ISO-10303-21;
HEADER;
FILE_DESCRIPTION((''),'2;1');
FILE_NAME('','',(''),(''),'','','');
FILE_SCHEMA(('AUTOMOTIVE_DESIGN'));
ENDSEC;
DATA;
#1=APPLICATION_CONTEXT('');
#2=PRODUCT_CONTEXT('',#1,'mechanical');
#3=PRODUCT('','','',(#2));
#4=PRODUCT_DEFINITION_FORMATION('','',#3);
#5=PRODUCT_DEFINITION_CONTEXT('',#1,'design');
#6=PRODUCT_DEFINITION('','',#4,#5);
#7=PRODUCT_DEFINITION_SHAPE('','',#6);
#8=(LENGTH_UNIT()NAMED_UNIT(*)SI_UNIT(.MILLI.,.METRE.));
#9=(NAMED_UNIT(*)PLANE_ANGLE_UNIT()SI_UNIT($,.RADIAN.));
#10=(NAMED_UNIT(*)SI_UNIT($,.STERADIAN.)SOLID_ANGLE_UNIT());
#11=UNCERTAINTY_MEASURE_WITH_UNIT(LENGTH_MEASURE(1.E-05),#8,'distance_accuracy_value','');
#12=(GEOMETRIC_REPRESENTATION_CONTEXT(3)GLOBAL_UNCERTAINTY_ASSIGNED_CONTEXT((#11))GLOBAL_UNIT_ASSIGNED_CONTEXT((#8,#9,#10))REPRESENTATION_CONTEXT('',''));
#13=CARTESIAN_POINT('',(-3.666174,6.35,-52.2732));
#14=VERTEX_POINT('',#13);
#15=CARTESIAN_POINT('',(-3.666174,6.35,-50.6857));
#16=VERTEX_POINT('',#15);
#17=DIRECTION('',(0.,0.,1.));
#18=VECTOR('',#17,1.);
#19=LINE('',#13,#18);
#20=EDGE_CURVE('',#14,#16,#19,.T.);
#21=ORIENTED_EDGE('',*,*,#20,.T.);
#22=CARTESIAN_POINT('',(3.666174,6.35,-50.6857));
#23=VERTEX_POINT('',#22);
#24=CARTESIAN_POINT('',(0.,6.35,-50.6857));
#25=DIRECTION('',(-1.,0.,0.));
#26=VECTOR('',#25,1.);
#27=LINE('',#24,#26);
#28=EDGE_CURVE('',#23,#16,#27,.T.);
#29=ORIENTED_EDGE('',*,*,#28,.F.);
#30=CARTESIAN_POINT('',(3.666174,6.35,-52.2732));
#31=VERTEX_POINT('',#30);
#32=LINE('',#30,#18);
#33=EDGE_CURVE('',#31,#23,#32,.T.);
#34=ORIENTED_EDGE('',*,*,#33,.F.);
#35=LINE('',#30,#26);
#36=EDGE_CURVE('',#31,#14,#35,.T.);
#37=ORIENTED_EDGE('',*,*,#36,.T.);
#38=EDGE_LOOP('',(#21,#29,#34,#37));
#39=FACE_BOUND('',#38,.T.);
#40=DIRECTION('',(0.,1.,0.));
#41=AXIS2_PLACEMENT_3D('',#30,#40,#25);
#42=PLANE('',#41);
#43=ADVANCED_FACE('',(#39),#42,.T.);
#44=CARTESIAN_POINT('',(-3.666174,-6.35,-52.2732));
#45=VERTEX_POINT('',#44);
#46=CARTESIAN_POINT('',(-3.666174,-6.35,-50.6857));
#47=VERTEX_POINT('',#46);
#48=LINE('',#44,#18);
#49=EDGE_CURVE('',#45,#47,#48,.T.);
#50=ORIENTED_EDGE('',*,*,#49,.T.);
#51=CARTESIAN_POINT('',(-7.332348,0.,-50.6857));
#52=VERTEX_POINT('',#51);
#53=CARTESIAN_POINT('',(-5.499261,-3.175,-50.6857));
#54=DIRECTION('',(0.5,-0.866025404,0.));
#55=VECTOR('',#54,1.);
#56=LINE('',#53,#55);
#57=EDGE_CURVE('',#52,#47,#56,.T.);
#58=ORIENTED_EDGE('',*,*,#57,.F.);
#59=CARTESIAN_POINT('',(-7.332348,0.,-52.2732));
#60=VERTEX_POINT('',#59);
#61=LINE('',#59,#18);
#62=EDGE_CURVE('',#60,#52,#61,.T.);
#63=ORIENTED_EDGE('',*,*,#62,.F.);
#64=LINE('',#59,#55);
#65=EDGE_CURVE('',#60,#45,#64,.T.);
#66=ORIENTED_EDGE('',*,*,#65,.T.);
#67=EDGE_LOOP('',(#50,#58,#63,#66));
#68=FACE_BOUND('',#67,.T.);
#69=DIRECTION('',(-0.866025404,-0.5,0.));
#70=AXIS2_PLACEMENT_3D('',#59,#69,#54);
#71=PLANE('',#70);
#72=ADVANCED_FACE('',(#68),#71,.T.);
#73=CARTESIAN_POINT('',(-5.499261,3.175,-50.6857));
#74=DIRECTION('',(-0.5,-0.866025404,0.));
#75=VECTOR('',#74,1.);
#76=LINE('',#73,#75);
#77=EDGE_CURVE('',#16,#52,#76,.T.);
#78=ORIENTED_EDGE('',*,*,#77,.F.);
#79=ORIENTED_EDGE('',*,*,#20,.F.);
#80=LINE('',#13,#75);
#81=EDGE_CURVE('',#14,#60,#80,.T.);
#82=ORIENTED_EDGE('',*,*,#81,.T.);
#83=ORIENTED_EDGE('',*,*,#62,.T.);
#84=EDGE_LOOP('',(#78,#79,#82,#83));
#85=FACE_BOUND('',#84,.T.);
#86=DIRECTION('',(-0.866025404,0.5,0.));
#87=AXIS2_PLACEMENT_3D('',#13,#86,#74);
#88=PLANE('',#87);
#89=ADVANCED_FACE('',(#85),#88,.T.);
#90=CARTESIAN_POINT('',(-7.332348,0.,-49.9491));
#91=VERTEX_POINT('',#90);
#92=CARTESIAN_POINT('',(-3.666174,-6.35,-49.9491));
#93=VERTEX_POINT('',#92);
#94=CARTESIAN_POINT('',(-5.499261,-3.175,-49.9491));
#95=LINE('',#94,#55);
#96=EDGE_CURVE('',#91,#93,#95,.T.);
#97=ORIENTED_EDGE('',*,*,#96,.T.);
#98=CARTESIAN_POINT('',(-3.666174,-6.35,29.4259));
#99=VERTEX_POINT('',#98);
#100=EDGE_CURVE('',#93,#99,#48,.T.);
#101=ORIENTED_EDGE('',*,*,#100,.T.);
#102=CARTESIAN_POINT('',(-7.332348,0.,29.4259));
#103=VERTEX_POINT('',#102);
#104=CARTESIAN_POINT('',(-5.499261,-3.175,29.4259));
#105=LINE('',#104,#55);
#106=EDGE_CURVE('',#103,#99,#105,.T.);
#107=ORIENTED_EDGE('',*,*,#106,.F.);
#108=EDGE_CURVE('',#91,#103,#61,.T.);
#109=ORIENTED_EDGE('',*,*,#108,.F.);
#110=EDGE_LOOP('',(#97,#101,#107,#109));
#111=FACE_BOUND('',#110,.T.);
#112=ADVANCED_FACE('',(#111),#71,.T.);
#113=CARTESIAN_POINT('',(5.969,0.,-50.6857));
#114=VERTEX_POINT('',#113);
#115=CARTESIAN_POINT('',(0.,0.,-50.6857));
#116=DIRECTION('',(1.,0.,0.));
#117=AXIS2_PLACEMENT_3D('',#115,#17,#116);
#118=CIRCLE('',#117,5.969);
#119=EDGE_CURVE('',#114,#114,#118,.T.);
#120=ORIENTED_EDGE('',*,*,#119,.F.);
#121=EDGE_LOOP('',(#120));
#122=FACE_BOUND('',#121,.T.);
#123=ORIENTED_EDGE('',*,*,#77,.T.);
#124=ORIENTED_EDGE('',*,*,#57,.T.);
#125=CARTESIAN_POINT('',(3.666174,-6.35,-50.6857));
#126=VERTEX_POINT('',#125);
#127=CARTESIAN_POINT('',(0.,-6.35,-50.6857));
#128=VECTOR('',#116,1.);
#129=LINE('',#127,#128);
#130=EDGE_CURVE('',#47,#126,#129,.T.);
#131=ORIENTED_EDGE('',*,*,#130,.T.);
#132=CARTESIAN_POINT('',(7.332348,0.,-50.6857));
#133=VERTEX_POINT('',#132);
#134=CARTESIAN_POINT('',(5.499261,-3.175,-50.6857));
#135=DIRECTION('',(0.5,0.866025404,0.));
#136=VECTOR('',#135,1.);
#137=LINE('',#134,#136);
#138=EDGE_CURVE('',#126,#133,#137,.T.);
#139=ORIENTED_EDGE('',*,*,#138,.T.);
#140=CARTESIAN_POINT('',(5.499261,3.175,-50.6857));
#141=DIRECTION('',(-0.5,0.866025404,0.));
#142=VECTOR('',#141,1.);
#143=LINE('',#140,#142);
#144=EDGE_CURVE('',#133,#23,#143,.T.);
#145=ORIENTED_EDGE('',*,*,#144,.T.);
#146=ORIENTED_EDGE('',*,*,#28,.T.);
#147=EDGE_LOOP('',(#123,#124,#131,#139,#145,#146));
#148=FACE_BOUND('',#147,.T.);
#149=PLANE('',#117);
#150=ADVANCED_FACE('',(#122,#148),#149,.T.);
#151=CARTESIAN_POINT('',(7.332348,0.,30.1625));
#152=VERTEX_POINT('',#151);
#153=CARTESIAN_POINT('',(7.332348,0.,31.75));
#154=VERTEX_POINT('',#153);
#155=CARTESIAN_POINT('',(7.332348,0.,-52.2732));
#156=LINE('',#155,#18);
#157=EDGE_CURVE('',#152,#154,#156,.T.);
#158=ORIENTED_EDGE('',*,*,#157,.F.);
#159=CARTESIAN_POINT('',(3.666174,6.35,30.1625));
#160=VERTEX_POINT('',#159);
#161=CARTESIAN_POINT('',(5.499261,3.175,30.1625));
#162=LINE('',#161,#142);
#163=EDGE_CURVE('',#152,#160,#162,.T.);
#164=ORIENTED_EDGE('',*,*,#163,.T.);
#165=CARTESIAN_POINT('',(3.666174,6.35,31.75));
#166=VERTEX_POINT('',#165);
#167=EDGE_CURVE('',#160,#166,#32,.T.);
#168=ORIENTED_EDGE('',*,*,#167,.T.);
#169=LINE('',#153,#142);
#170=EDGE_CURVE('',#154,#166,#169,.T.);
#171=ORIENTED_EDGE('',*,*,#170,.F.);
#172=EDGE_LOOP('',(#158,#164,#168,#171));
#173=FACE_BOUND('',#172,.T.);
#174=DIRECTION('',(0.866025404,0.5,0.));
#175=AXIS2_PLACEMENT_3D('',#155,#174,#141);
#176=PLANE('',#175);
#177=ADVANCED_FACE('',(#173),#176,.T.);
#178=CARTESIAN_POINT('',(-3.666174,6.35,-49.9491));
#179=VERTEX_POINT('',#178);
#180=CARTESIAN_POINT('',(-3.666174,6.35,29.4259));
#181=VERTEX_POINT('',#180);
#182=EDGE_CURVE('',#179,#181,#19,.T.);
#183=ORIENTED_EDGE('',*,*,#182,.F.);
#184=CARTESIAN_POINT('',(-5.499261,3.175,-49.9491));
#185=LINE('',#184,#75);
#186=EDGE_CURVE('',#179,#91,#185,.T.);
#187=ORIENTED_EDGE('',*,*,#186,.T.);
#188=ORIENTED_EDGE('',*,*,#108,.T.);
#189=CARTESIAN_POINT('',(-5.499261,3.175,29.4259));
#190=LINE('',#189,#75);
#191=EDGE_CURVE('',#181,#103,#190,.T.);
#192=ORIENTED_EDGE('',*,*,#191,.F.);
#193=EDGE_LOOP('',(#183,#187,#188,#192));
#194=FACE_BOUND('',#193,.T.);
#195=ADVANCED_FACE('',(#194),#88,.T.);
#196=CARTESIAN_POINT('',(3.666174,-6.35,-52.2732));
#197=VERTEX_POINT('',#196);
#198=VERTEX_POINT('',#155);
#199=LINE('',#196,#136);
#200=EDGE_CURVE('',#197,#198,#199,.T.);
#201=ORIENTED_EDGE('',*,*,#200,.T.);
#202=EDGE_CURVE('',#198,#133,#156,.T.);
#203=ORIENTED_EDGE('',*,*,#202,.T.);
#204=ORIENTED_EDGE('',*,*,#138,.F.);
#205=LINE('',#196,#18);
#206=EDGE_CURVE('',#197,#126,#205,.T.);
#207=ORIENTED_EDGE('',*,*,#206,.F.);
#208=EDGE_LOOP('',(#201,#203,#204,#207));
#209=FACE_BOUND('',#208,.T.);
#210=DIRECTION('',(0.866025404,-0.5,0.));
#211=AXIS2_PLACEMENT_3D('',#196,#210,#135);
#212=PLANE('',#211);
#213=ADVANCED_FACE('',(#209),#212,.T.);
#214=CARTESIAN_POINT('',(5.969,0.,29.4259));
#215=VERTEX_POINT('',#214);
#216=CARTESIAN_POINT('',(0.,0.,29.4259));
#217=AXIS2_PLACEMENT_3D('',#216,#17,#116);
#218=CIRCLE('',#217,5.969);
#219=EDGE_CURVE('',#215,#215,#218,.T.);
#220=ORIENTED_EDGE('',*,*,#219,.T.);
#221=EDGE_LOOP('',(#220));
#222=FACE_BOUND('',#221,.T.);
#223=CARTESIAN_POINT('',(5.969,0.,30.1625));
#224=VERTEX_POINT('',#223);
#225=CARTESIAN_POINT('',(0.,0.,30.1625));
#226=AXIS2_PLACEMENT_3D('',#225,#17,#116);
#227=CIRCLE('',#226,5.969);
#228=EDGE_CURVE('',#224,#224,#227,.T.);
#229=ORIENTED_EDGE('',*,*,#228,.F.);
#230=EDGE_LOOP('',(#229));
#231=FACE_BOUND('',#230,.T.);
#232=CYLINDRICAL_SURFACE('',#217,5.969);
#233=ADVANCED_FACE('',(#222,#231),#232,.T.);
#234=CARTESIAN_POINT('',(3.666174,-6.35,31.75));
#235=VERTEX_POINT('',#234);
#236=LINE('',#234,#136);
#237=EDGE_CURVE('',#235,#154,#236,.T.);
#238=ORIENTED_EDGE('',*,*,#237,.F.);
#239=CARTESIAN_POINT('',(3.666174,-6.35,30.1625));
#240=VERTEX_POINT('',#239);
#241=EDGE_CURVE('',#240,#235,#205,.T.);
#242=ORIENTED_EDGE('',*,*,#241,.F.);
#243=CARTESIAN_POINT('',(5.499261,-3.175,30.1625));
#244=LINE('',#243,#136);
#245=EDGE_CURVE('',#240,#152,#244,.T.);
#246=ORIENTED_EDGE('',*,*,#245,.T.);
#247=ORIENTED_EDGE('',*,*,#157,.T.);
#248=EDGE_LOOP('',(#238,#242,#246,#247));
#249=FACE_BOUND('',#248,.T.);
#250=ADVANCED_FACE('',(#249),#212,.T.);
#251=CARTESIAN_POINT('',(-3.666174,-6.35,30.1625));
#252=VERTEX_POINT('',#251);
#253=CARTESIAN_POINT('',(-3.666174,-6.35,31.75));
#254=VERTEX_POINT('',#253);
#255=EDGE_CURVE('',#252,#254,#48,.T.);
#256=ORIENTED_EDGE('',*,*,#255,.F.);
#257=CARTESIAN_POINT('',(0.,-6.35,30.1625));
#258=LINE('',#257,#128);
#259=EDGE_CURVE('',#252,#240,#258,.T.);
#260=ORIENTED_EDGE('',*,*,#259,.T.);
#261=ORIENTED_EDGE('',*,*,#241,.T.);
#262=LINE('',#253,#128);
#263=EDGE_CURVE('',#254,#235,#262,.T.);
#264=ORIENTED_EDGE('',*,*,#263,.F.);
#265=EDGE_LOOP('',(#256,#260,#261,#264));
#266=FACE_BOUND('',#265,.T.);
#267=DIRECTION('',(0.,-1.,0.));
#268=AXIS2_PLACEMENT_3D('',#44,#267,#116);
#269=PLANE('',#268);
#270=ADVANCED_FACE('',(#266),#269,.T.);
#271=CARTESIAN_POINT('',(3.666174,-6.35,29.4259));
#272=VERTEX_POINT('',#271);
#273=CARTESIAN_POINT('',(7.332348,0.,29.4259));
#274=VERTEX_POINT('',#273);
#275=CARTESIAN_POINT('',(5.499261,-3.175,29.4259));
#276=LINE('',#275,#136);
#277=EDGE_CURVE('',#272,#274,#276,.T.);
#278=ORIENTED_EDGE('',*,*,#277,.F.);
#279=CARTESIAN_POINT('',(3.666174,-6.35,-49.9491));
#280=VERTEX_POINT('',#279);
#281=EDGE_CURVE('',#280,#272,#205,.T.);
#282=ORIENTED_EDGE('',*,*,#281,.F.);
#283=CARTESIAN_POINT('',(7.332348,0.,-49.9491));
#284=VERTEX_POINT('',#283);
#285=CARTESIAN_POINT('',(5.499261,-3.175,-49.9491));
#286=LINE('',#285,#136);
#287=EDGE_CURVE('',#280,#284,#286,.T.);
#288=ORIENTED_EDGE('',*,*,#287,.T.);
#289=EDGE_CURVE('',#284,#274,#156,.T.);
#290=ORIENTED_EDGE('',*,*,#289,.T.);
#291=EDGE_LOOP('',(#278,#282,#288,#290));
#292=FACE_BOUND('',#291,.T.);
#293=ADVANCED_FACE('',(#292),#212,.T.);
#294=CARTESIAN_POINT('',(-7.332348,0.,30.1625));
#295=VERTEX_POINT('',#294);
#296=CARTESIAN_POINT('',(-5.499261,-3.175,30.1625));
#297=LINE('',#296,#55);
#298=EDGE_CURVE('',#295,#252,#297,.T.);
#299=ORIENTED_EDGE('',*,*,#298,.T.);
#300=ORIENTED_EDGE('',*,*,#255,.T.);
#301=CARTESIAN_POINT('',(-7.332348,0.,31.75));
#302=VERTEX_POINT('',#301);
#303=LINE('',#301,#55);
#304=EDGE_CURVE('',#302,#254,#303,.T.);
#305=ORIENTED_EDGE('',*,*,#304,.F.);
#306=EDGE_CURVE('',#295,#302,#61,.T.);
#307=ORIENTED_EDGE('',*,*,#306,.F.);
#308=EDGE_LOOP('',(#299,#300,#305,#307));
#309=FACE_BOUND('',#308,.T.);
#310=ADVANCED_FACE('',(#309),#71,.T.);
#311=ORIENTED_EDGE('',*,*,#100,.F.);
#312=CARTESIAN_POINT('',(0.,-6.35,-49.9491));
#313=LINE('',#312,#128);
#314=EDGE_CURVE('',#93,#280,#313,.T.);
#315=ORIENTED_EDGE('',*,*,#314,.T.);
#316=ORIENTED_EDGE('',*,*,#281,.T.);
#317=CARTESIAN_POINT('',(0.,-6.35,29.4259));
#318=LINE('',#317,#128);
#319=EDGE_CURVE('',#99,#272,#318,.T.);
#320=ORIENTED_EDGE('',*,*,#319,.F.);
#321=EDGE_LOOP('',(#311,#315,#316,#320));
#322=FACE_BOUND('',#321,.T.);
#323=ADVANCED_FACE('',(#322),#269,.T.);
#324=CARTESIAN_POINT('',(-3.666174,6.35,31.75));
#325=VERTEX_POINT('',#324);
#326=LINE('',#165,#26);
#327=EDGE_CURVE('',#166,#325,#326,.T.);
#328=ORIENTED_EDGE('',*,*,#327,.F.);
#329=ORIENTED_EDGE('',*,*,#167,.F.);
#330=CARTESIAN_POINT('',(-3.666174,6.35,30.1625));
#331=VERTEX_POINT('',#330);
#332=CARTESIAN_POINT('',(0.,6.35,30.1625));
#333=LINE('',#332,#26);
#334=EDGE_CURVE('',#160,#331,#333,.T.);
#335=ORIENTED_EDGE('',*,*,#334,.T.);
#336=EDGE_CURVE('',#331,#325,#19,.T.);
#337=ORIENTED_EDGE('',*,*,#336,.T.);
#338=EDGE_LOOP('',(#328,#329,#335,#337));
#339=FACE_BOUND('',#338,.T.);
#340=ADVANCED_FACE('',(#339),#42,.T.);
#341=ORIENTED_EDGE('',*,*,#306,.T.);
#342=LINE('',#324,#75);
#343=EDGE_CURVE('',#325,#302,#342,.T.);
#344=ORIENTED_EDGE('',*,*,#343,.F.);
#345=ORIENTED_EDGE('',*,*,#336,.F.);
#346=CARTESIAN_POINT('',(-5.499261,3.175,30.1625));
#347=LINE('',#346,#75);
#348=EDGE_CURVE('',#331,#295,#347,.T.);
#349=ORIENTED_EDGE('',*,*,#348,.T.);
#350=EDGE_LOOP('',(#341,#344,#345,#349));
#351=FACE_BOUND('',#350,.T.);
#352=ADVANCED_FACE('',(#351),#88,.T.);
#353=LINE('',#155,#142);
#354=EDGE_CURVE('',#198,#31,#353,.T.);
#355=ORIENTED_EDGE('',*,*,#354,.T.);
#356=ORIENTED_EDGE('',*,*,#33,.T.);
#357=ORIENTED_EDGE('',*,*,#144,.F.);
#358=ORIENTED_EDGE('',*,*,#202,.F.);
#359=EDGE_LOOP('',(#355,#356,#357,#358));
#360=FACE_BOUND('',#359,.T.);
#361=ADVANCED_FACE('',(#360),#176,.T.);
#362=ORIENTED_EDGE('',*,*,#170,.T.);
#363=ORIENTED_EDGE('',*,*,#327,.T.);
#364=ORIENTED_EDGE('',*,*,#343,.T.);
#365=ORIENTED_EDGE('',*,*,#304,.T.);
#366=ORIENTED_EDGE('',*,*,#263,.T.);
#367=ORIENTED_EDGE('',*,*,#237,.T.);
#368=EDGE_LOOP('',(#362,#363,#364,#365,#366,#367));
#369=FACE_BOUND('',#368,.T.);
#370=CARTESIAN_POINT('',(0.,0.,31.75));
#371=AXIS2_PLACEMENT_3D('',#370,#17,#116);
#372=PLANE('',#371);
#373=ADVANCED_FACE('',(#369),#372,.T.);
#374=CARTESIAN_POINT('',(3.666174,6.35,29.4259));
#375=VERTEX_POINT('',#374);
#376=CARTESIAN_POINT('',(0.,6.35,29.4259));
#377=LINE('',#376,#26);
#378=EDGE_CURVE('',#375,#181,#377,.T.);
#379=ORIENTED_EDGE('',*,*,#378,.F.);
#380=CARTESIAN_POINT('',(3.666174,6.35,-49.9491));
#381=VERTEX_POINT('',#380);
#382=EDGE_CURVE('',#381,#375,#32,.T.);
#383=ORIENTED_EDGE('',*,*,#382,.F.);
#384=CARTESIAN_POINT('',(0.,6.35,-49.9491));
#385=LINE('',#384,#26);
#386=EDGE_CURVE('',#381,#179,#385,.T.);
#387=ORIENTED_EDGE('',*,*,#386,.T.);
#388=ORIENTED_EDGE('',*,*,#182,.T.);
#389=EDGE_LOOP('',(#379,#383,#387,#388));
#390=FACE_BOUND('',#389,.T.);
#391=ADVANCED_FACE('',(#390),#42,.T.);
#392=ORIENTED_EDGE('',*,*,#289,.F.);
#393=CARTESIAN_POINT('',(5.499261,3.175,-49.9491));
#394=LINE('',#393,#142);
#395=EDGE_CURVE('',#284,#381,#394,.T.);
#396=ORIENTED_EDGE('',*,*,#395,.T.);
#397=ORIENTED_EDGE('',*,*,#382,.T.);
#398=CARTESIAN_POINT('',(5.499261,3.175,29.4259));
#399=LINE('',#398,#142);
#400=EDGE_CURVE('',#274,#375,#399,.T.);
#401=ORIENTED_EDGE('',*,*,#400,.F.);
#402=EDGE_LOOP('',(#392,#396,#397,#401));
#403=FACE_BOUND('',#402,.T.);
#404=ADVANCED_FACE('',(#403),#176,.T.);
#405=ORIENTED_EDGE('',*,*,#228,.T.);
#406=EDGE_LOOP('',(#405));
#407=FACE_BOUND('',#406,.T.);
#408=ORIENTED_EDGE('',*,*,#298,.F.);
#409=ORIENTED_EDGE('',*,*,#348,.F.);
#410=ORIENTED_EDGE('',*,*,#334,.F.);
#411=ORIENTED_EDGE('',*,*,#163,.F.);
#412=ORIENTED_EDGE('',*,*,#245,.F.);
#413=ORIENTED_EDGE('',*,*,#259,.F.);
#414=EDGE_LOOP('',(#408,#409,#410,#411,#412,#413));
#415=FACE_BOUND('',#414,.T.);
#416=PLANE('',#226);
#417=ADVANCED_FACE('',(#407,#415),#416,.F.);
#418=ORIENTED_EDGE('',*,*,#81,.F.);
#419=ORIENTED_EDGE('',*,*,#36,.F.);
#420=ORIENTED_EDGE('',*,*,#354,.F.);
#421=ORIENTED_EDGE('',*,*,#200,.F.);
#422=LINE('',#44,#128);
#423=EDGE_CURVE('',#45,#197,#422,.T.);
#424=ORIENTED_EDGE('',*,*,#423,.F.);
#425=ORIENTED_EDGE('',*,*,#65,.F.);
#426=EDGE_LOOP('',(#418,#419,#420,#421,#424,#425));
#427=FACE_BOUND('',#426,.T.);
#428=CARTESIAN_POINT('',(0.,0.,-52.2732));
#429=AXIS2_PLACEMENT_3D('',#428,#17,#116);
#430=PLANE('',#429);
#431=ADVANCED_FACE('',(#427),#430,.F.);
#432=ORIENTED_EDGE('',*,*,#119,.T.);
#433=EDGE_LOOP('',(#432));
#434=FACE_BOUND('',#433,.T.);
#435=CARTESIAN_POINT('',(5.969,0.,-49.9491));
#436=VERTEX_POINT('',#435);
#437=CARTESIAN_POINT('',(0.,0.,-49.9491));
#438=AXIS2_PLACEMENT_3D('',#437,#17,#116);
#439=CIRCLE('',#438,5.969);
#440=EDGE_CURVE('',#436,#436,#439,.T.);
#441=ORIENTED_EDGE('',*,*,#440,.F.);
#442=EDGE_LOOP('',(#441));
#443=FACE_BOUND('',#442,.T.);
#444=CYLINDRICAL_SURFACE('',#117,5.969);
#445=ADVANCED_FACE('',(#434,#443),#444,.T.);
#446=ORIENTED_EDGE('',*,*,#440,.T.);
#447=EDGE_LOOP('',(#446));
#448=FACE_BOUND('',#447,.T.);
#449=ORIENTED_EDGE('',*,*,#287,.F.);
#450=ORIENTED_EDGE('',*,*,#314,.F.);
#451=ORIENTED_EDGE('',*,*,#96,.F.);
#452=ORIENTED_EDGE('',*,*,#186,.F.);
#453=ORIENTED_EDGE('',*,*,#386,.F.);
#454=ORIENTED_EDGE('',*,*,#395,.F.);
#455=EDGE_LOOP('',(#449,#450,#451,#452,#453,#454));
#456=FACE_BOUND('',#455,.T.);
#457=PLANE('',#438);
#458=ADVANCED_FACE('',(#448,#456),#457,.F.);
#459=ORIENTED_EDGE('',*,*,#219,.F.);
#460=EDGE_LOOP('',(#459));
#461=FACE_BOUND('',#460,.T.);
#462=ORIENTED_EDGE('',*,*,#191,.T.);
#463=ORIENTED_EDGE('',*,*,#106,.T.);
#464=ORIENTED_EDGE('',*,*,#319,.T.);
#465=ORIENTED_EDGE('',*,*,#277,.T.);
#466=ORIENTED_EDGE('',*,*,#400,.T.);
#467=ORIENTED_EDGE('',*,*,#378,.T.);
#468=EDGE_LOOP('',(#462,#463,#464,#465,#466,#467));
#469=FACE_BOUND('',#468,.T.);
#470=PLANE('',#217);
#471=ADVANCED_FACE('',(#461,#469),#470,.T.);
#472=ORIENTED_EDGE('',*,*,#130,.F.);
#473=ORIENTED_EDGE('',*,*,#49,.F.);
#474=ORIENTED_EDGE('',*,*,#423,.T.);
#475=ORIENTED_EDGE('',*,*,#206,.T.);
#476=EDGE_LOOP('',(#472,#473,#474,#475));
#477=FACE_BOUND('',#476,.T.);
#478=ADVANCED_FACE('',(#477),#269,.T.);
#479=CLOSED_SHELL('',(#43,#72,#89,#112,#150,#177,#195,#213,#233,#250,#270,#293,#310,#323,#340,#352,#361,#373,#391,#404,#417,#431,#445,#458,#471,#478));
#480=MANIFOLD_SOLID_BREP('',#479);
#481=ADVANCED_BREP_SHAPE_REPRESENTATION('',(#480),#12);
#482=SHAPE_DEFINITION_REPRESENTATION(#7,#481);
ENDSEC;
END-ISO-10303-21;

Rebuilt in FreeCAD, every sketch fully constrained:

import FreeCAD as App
import Part
import Sketcher
Q = App.Units.Quantity

doc = App.newDocument("Part")
body = doc.addObject("PartDesign::Body", "Body")

# Sketch on XY plane
sketch1 = body.newObject("Sketcher::SketchObject", "Sketch")
sketch1.AttachmentSupport = (doc.getObject("XY_Plane"), [""])
sketch1.MapMode = "FlatFace"
sketch1.AttachmentOffset = App.Placement(App.Vector(0, 0, 1.25 * 25.4), App.Rotation())
sketch1.addGeometry([
    Part.LineSegment(App.Vector(7, 0, 0), App.Vector(4, 6, 0)),  # 0
    Part.LineSegment(App.Vector(4, 6, 0), App.Vector(-4, 6, 0)),  # 1
    Part.LineSegment(App.Vector(-4, 6, 0), App.Vector(-7, 0, 0)),  # 2
    Part.LineSegment(App.Vector(-7, 0, 0), App.Vector(-4, -6, 0)),  # 3
    Part.LineSegment(App.Vector(-4, -6, 0), App.Vector(4, -6, 0)),  # 4
    Part.LineSegment(App.Vector(4, -6, 0), App.Vector(7, 0, 0)),  # 5
], False)
sketch1.addConstraint([
    Sketcher.Constraint("Coincident", 0, 2, 1, 1),
    Sketcher.Constraint("Coincident", 1, 2, 2, 1),
    Sketcher.Constraint("Coincident", 2, 2, 3, 1),
    Sketcher.Constraint("Coincident", 3, 2, 4, 1),
    Sketcher.Constraint("Coincident", 4, 2, 5, 1),
    Sketcher.Constraint("Coincident", 5, 2, 0, 1),
    Sketcher.Constraint("Horizontal", 1),
    Sketcher.Constraint("Horizontal", 4),
    Sketcher.Constraint("Symmetric", 0, 2, 3, 2, -1, 1),
    Sketcher.Constraint("Symmetric", 2, 2, 5, 2, -1, 1),
    Sketcher.Constraint("PointOnObject", 2, 2, -1),
    Sketcher.Constraint("Parallel", 2, 5),
    Sketcher.Constraint("Vertical", 1, 2, 3, 2),
    Sketcher.Constraint("Angle", 0, Q("120 deg")),
    Sketcher.Constraint("DistanceY", 3, 2, 1, 2, Q("0.5 in")),
    Sketcher.Constraint("DistanceX", 1, 2, 1, 1, 7.332348),
])
pad1 = body.newObject("PartDesign::Pad", "Pad")
pad1.Profile = sketch1
pad1.Length = Q("3.308 in")
pad1.Reversed = True

# Sketch on XY plane
sketch2 = body.newObject("Sketcher::SketchObject", "Sketch001")
sketch2.AttachmentSupport = (doc.getObject("XY_Plane"), [""])
sketch2.MapMode = "FlatFace"
sketch2.AttachmentOffset = App.Placement(App.Vector(0, 0, 1.1875 * 25.4), App.Rotation())
sketch2.addGeometry([
    Part.LineSegment(App.Vector(-4, -6, 0), App.Vector(4, -6, 0)),  # 0
    Part.LineSegment(App.Vector(4, -6, 0), App.Vector(7, 0, 0)),  # 1
    Part.LineSegment(App.Vector(7, 0, 0), App.Vector(4, 6, 0)),  # 2
    Part.LineSegment(App.Vector(4, 6, 0), App.Vector(-4, 6, 0)),  # 3
    Part.LineSegment(App.Vector(-4, 6, 0), App.Vector(-7, 0, 0)),  # 4
    Part.LineSegment(App.Vector(-7, 0, 0), App.Vector(-4, -6, 0)),  # 5
    Part.Circle(App.Vector(0, 0, 0), App.Vector(0, 0, 1), 6),  # 6
], False)
sketch2.addConstraint([
    Sketcher.Constraint("Coincident", 0, 2, 1, 1),
    Sketcher.Constraint("Coincident", 1, 2, 2, 1),
    Sketcher.Constraint("Coincident", 2, 2, 3, 1),
    Sketcher.Constraint("Coincident", 3, 2, 4, 1),
    Sketcher.Constraint("Coincident", 4, 2, 5, 1),
    Sketcher.Constraint("Coincident", 5, 2, 0, 1),
    Sketcher.Constraint("Horizontal", 0),
    Sketcher.Constraint("Horizontal", 3),
    Sketcher.Constraint("Coincident", 6, 3, -1, 1),
    Sketcher.Constraint("Symmetric", 0, 2, 3, 2, -1, 1),
    Sketcher.Constraint("Symmetric", 1, 2, 4, 2, -1, 1),
    Sketcher.Constraint("PointOnObject", 1, 2, -1),
    Sketcher.Constraint("Parallel", 2, 5),
    Sketcher.Constraint("Vertical", 0, 2, 2, 2),
    Sketcher.Constraint("Diameter", 6, Q("0.47 in")),
    Sketcher.Constraint("Angle", 1, Q("60 deg")),
    Sketcher.Constraint("DistanceY", 0, 2, 2, 2, Q("0.5 in")),
    Sketcher.Constraint("DistanceX", 0, 1, 0, 2, 7.332348),
])
pocket1 = body.newObject("PartDesign::Pocket", "Pocket")
pocket1.Profile = sketch2
pocket1.Length = Q("0.029 in")
doc.recompute()

linearpattern = body.newObject("PartDesign::LinearPattern", "LinearPattern")
linearpattern.Originals = [pocket1]
linearpattern.Direction = (doc.getObject("Z_Axis"), [""])
linearpattern.Mode = "offset"
linearpattern.Offset = Q("3.154 in")
linearpattern.Occurrences = 2
linearpattern.Reversed = True
body.Tip = linearpattern

doc.recompute()
